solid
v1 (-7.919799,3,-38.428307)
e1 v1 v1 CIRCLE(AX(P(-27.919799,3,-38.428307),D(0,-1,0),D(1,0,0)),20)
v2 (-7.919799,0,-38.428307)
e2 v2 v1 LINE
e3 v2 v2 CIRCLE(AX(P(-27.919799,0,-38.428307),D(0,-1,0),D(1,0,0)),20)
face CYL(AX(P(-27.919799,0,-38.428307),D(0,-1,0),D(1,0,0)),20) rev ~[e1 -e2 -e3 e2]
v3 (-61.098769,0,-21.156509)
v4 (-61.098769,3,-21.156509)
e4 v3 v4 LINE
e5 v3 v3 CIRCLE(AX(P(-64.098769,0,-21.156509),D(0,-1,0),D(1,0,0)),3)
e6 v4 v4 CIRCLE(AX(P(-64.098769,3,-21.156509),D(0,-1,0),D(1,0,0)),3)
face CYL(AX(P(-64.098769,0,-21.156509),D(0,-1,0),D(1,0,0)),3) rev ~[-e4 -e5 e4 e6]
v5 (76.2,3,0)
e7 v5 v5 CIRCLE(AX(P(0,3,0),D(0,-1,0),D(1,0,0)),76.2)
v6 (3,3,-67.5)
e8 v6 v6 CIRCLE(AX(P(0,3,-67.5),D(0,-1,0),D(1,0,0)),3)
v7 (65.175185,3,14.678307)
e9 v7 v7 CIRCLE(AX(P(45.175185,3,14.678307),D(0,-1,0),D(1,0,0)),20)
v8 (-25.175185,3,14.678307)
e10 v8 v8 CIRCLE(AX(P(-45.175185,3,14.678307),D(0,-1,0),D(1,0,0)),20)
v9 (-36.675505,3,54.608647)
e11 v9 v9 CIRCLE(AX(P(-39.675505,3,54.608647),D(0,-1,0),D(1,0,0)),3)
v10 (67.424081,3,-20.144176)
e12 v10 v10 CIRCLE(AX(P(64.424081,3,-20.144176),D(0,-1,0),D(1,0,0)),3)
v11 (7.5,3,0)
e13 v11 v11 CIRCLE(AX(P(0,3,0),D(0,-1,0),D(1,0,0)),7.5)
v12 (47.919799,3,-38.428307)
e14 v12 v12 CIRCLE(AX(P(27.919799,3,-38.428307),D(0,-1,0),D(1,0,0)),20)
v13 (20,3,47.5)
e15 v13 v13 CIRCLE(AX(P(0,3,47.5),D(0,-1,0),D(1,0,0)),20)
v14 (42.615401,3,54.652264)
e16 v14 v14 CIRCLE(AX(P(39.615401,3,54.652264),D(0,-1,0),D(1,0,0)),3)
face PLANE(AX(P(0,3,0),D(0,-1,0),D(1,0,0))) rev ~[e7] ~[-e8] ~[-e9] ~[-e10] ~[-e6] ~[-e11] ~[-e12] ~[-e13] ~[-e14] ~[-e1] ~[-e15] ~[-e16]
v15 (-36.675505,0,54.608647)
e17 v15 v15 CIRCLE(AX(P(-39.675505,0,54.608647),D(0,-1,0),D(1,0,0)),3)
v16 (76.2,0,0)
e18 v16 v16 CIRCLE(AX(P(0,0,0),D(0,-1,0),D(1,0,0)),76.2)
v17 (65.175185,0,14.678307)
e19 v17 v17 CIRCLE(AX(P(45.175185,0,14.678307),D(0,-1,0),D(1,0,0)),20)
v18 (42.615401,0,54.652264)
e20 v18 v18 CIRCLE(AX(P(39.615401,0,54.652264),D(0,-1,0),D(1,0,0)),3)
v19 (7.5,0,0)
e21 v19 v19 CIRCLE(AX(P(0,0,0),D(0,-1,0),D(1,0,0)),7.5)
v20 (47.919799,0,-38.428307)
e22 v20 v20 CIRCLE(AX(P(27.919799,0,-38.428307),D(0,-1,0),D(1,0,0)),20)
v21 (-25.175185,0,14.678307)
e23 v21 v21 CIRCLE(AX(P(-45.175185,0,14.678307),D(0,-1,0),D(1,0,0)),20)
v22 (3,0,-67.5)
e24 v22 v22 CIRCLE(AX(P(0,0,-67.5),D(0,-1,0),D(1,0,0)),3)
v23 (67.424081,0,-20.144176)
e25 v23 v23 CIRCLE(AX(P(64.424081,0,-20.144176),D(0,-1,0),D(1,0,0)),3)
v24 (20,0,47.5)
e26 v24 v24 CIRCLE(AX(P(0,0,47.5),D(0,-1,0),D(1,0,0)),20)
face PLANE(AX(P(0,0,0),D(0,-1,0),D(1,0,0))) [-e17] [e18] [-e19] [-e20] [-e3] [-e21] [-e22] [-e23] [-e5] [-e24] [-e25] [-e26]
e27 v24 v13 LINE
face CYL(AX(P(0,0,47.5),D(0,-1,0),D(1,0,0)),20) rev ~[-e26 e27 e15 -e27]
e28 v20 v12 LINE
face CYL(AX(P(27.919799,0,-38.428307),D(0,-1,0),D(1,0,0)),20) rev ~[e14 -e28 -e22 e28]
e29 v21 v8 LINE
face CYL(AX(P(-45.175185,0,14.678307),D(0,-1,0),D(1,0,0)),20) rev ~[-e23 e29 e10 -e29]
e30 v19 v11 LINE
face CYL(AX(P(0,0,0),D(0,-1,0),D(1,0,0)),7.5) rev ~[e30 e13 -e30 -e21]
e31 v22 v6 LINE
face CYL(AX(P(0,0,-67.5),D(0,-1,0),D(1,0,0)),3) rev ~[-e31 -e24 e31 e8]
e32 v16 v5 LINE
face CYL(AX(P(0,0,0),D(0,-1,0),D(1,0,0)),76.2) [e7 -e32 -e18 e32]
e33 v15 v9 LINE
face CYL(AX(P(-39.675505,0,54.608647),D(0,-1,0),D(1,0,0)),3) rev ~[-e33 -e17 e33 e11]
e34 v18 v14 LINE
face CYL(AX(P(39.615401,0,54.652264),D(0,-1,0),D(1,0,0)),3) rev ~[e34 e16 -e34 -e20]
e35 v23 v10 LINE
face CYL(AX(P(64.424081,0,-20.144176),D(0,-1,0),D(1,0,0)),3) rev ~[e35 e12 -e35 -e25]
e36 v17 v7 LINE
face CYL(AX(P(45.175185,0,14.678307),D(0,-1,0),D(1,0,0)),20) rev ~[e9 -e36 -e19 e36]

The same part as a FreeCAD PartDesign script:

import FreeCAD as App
import Part
import Sketcher

V = App.Vector
Q = App.Units.Quantity

doc = App.newDocument("Part")
body = doc.addObject("PartDesign::Body", "Body")

sketch1 = body.newObject("Sketcher::SketchObject", "Sketch")
sketch1.AttachmentSupport = (doc.getObject("XZ_Plane"), [""])
sketch1.MapMode = "FlatFace"
sketch1.addGeometry(Part.Circle(V(0, 0, 0), V(0, 0, 1), 76.2), False)
sketch1.addGeometry(Part.Circle(V(0, -67.5, 0), V(0, 0, 1), 3), False)
sketch1.addGeometry(Part.Circle(V(-27.919799, -38.428307, 0), V(0, 0, 1), 20), False)
sketch1.addGeometry(Part.Circle(V(-64.098769, -21.156509, 0), V(0, 0, 1), 3), False)
sketch1.addGeometry(Part.Circle(V(27.919799, -38.428307, 0), V(0, 0, 1), 20), False)
sketch1.addGeometry(Part.Circle(V(64.424081, -20.144176, 0), V(0, 0, 1), 3), False)
sketch1.addGeometry(Part.Circle(V(-45.175185, 14.678307, 0), V(0, 0, 1), 20), False)
sketch1.addGeometry(Part.Circle(V(0, 0, 0), V(0, 0, 1), 7.5), False)
sketch1.addGeometry(Part.Circle(V(-39.675505, 54.608647, 0), V(0, 0, 1), 3), False)
sketch1.addGeometry(Part.Circle(V(0, 47.5, 0), V(0, 0, 1), 20), False)
sketch1.addGeometry(Part.Circle(V(45.175185, 14.678307, 0), V(0, 0, 1), 20), False)
sketch1.addGeometry(Part.Circle(V(39.615401, 54.652264, 0), V(0, 0, 1), 3), False)
sketch1.addConstraint(Sketcher.Constraint("Coincident", 0, 3, -1, 1))
sketch1.addConstraint(Sketcher.Constraint("Coincident", 7, 3, -1, 1))
sketch1.addConstraint(Sketcher.Constraint("Equal", 1, 3))
sketch1.addConstraint(Sketcher.Constraint("Equal", 2, 4))
sketch1.addConstraint(Sketcher.Constraint("Equal", 3, 5))
sketch1.addConstraint(Sketcher.Constraint("Equal", 4, 6))
sketch1.addConstraint(Sketcher.Constraint("Equal", 5, 8))
sketch1.addConstraint(Sketcher.Constraint("Equal", 6, 9))
sketch1.addConstraint(Sketcher.Constraint("Equal", 9, 10))
sketch1.addConstraint(Sketcher.Constraint("Equal", 8, 11))
sketch1.addConstraint(Sketcher.Constraint("Symmetric", 2, 3, 4, 3, -2))
sketch1.addConstraint(Sketcher.Constraint("Symmetric", 6, 3, 10, 3, -2))
sketch1.addConstraint(Sketcher.Constraint("PointOnObject", 1, 3, -2))
sketch1.addConstraint(Sketcher.Constraint("PointOnObject", 9, 3, -2))
sketch1.addConstraint(Sketcher.Constraint("Diameter", 1, Q("6 mm")))
sketch1.addConstraint(Sketcher.Constraint("Diameter", 2, Q("40 mm")))
sketch1.addConstraint(Sketcher.Constraint("Diameter", 7, Q("15 mm")))
sketch1.addConstraint(Sketcher.Constraint("Diameter", 0, Q("152.4 mm")))
sketch1.addConstraint(Sketcher.Constraint("DistanceY", 1, 3, -1, 1, Q("67.5 mm")))
sketch1.addConstraint(Sketcher.Constraint("DistanceY", -1, 1, 9, 3, Q("47.5 mm")))
sketch1.addConstraint(Sketcher.Constraint("DistanceX", 2, 3, -1, 1, Q("27.919799 mm")))
sketch1.addConstraint(Sketcher.Constraint("DistanceX", -1, 1, 11, 3, Q("39.615401 mm")))
sketch1.addConstraint(Sketcher.Constraint("DistanceX", 3, 3, -1, 1, Q("64.098769 mm")))
sketch1.addConstraint(Sketcher.Constraint("DistanceY", 3, 3, -1, 1, Q("21.156509 mm")))
sketch1.addConstraint(Sketcher.Constraint("DistanceX", -1, 1, 5, 3, Q("64.424081 mm")))
sketch1.addConstraint(Sketcher.Constraint("DistanceY", 4, 3, 5, 3, Q("18.284131 mm")))
sketch1.addConstraint(Sketcher.Constraint("DistanceX", 6, 3, 8, 3, Q("5.49968 mm")))
sketch1.addConstraint(Sketcher.Constraint("DistanceY", 6, 3, 8, 3, Q("39.93034 mm")))
sketch1.addConstraint(Sketcher.Constraint("DistanceY", 5, 3, 11, 3, Q("74.79644 mm")))
sketch1.addConstraint(Sketcher.Constraint("DistanceY", 2, 3, -1, 1, Q("38.428307 mm")))
sketch1.addConstraint(Sketcher.Constraint("DistanceX", 6, 3, -1, 1, Q("45.175185 mm")))
sketch1.addConstraint(Sketcher.Constraint("DistanceY", -1, 1, 6, 3, Q("14.678307 mm")))
pad1 = body.newObject("PartDesign::Pad", "Pad")
pad1.Profile = sketch1
pad1.Length = 3
pad1.Reversed = True

doc.recompute()
